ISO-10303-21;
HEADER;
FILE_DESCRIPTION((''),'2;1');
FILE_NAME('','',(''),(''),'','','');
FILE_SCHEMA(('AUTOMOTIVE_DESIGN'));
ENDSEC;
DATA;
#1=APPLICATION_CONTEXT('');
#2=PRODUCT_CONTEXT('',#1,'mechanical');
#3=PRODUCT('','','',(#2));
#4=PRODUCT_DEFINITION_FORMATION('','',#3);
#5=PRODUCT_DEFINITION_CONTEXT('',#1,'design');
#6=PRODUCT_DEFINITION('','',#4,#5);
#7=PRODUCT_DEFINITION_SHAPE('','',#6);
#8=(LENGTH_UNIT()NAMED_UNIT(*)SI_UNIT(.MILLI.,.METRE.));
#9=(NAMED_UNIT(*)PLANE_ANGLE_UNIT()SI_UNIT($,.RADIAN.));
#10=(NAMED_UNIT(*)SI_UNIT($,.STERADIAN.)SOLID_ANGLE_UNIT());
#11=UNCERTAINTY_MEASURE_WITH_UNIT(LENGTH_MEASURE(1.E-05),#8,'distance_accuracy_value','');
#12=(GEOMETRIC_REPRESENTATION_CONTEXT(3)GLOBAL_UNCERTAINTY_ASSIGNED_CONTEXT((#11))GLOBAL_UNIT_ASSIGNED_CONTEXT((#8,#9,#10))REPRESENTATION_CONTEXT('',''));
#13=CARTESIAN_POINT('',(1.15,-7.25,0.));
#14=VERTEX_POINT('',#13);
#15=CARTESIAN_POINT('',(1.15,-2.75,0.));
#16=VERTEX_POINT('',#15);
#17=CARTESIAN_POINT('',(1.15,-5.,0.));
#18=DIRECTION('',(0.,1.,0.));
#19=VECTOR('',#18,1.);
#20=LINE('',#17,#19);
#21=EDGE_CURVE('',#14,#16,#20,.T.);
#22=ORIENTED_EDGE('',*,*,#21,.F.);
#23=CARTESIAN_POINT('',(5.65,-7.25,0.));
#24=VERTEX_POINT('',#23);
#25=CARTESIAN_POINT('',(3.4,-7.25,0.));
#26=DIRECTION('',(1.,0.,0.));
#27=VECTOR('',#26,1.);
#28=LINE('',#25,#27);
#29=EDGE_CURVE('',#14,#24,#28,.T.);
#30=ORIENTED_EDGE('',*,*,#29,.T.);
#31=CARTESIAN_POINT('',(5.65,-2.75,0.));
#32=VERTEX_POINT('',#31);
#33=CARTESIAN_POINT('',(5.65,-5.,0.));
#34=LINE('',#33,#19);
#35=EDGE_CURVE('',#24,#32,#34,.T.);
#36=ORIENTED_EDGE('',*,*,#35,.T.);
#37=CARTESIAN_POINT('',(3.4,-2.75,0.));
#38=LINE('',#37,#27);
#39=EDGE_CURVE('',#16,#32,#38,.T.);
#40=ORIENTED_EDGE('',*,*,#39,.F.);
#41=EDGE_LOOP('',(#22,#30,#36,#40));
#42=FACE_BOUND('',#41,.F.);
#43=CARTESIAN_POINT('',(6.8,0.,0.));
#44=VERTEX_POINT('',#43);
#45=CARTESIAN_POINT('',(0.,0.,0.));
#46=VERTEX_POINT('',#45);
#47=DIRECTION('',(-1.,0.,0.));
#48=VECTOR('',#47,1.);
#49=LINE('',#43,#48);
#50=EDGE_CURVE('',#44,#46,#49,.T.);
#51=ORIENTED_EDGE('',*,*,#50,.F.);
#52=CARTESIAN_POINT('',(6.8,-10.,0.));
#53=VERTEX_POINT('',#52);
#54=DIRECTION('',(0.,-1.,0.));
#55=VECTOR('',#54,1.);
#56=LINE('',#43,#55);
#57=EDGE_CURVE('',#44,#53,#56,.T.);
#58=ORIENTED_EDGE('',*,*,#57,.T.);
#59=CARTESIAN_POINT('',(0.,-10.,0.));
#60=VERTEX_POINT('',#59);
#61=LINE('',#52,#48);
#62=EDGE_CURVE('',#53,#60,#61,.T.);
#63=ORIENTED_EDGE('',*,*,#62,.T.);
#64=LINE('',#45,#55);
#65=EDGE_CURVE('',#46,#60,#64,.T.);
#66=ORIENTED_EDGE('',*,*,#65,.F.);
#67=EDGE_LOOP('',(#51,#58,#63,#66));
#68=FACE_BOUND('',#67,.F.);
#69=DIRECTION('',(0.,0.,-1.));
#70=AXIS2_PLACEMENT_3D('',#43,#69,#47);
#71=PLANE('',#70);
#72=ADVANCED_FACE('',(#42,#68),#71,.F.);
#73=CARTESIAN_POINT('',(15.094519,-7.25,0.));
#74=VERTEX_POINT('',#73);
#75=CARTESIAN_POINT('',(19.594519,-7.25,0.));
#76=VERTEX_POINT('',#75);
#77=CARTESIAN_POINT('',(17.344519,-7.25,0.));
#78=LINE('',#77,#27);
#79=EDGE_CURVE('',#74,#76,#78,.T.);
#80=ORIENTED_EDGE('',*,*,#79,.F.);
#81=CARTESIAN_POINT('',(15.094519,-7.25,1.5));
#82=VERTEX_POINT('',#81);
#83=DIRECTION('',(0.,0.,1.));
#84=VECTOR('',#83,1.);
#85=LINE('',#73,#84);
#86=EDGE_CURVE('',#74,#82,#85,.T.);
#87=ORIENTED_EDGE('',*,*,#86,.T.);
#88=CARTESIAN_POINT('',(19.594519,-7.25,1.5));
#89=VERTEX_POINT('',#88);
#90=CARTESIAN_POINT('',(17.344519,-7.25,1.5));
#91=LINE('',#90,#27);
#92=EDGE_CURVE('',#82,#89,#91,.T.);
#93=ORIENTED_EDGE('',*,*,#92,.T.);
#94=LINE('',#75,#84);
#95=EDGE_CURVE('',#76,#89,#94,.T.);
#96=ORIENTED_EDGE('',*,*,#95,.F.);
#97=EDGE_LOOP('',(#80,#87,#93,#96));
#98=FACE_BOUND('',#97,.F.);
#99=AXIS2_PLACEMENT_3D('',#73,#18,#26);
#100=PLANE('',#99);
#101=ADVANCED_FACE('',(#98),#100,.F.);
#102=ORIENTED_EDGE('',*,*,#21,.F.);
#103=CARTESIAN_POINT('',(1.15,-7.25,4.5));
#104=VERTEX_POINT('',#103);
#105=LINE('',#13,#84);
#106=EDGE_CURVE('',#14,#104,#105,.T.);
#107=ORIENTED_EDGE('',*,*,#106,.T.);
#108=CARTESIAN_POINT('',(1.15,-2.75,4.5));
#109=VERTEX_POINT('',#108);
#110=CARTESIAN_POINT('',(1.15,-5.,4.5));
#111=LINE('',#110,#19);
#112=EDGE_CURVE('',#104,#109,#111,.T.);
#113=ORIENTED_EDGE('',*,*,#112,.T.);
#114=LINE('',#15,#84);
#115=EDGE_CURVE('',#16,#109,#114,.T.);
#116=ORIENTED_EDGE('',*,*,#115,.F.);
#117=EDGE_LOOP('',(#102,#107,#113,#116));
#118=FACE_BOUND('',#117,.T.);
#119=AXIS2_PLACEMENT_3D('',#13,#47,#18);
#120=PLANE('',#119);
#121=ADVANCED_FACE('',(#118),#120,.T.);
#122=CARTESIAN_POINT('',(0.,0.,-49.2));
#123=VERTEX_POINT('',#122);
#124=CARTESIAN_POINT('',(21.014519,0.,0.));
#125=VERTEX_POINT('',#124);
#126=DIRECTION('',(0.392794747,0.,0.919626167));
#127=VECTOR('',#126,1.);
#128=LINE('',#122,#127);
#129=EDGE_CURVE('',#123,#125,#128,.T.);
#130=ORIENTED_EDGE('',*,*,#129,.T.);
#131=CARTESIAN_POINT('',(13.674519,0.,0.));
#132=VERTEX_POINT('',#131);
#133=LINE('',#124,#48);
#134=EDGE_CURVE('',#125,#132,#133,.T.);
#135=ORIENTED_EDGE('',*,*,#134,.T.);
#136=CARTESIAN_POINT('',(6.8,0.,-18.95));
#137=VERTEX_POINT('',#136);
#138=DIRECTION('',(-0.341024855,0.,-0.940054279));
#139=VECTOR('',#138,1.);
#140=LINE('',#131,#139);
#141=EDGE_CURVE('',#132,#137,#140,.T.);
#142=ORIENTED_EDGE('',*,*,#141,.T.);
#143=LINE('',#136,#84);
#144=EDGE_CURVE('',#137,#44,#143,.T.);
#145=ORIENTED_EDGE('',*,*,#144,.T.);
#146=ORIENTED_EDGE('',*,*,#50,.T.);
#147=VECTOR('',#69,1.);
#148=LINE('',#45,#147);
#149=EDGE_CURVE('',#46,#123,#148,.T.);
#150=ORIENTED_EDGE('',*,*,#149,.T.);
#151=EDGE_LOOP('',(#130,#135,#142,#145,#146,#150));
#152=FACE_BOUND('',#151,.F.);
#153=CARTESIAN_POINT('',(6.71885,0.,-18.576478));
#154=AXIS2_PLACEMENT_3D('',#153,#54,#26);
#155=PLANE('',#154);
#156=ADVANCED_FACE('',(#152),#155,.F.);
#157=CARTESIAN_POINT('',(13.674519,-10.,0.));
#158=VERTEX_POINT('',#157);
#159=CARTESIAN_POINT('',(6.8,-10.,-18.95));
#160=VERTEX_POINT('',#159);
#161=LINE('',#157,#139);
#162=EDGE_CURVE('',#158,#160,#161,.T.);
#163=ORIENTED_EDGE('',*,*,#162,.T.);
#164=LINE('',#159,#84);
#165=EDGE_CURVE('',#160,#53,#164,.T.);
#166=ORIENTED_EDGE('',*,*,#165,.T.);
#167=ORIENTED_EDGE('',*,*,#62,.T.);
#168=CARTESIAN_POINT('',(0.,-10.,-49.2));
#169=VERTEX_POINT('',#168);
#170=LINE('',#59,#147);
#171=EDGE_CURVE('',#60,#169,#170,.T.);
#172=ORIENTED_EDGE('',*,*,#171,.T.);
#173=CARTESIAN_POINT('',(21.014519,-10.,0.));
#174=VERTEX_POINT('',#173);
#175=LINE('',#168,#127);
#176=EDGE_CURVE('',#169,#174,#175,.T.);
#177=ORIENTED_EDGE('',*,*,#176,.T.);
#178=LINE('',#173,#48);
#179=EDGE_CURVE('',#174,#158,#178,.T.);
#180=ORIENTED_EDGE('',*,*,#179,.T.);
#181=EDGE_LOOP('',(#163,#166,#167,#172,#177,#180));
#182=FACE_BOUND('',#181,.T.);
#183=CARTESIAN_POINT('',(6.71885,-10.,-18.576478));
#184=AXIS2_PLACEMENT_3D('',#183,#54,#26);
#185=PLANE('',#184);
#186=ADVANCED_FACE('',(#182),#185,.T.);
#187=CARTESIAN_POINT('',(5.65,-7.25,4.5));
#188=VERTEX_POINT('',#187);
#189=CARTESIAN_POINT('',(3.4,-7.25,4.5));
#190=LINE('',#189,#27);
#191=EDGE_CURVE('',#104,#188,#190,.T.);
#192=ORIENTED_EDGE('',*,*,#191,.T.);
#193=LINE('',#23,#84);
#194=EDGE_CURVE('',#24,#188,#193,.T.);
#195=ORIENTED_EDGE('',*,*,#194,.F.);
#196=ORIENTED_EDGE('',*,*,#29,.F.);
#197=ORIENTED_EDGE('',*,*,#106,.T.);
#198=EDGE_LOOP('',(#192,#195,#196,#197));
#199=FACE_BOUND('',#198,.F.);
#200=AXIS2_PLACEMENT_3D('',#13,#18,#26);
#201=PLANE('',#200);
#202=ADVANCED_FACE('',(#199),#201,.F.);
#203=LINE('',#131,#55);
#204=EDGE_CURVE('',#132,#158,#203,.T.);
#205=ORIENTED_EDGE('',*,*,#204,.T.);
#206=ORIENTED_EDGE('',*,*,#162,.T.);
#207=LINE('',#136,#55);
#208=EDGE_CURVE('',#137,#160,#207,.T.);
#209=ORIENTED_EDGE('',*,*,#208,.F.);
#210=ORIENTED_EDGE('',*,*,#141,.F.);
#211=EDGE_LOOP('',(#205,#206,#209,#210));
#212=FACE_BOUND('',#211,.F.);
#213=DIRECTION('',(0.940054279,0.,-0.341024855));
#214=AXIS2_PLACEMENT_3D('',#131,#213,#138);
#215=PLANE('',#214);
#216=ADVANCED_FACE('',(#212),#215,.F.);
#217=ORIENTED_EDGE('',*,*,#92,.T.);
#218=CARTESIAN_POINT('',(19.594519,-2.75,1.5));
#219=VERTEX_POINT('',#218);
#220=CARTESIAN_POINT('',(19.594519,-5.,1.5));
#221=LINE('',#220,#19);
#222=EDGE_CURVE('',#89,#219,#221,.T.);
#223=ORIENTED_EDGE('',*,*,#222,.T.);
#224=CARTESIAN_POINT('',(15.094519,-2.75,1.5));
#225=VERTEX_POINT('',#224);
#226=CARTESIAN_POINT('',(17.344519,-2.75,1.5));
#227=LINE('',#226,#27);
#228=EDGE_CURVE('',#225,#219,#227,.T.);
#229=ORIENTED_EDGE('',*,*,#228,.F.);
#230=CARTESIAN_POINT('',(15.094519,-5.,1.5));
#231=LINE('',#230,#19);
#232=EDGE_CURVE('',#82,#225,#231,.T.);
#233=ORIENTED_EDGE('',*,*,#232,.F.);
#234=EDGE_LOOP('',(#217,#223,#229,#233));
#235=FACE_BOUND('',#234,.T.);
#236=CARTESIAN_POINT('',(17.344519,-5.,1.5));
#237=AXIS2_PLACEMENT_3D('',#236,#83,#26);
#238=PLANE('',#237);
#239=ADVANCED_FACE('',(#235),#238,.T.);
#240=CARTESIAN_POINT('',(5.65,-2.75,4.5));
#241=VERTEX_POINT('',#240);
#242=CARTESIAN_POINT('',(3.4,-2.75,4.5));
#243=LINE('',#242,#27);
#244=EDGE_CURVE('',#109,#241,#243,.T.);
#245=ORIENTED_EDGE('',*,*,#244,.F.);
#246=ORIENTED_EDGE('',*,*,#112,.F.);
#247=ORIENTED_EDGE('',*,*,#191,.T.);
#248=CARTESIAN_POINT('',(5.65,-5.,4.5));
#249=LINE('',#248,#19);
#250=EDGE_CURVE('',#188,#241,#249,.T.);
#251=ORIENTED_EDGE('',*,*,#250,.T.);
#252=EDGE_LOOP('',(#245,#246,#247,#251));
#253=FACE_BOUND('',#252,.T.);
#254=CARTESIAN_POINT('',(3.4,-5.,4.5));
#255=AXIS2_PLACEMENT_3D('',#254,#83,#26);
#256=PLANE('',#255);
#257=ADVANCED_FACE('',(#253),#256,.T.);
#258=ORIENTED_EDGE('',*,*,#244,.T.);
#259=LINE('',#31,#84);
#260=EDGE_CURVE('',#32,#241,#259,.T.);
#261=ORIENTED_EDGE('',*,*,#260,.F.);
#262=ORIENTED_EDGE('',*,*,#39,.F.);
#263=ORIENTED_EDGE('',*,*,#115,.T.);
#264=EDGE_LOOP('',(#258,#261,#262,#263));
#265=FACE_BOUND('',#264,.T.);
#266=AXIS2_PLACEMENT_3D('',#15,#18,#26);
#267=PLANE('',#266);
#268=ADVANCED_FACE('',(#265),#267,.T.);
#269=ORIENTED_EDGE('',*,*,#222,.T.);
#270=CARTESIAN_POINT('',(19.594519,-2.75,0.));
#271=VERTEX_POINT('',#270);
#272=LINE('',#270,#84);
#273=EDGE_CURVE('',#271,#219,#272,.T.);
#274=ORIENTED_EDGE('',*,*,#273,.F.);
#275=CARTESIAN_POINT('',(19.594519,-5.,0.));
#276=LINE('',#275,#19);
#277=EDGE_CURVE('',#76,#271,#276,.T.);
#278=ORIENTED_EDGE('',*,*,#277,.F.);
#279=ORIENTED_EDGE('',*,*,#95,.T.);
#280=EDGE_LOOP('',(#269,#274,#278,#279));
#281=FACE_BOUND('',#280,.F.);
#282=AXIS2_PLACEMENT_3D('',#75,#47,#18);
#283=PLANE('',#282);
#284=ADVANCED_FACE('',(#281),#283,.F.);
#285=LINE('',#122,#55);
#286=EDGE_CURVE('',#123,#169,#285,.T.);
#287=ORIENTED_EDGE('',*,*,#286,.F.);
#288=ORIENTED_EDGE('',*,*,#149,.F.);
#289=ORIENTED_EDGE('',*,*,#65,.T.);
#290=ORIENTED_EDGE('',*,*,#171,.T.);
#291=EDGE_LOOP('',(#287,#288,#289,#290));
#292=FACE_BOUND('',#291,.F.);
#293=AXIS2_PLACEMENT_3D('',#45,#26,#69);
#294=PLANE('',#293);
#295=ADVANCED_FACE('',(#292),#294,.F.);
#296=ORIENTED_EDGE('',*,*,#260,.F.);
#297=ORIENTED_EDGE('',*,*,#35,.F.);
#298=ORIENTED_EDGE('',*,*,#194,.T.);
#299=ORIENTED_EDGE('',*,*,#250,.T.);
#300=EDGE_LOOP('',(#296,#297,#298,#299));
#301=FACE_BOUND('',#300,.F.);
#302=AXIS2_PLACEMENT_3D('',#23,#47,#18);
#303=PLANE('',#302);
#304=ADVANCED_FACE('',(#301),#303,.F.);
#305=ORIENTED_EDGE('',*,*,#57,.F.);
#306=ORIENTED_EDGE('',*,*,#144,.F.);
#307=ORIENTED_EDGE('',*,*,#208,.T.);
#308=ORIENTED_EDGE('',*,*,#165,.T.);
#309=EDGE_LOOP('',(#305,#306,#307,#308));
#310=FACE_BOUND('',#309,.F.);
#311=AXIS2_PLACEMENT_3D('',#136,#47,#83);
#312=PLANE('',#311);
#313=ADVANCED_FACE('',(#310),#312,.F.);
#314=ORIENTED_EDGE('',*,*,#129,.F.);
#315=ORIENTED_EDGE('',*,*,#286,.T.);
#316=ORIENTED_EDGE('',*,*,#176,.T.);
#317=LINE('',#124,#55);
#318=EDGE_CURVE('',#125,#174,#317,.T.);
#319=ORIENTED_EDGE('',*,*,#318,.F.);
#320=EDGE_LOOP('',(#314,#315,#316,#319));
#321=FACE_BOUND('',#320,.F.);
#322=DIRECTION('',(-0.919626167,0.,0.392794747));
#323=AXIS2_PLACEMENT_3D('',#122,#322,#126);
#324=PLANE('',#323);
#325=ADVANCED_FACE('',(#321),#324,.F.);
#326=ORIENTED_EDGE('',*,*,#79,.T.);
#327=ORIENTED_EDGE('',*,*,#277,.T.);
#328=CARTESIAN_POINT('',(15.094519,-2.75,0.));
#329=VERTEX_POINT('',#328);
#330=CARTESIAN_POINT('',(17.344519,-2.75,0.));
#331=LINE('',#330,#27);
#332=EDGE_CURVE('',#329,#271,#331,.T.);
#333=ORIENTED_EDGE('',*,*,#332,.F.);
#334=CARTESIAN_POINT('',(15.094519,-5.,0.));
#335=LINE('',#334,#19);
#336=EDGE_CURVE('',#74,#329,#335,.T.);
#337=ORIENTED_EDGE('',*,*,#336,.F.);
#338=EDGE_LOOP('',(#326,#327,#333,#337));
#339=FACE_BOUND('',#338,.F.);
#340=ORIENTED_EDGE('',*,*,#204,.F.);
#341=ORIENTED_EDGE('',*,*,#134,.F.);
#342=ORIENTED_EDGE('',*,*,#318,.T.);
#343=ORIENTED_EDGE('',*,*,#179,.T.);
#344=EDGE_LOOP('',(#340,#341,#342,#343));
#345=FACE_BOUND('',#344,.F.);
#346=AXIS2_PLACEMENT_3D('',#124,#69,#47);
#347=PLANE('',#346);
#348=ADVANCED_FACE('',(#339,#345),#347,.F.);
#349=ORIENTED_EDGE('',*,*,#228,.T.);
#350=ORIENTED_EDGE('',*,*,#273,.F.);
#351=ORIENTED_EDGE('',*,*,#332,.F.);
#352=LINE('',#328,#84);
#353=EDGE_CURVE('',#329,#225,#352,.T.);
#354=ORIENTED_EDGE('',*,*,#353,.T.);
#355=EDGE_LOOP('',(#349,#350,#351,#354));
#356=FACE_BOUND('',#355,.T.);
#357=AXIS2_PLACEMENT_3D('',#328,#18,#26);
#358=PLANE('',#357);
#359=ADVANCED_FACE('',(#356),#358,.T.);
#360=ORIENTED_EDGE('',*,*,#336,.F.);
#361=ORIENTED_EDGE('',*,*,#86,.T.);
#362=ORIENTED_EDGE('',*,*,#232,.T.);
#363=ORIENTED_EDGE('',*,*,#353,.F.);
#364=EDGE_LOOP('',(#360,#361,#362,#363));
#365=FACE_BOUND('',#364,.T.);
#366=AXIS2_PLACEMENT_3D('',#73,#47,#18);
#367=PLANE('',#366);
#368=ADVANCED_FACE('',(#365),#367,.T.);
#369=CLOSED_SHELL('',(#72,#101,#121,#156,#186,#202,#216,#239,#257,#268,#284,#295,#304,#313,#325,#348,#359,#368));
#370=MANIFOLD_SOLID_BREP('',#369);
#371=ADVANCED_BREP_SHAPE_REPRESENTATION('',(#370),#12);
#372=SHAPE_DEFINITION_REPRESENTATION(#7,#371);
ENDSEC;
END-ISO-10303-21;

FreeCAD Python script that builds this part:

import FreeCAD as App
import Part
import Sketcher
Q = App.Units.Quantity


def add_polygon(sketch, points):
    """Adds a closed chain of lines whose ends are joined by coincident constraints."""
    first, n = sketch.GeometryCount, len(points)
    for a, b in zip(points, points[1:] + points[:1]):
        sketch.addGeometry(Part.LineSegment(App.Vector(*a, 0), App.Vector(*b, 0)), False)
    for i in range(n):
        sketch.addConstraint(Sketcher.Constraint("Coincident", first + i, 2, first + (i + 1) % n, 1))

doc = App.newDocument("Part")
body = doc.addObject("PartDesign::Body", "Body")

sketch1 = body.newObject("Sketcher::SketchObject", "Sketch")
sketch1.AttachmentSupport = (doc.getObject("XZ_Plane"), [""])
sketch1.MapMode = "FlatFace"
add_polygon(sketch1, [(6.8, 0), (0, 0), (0, -49.2), (21.014519, 0), (13.674519, 0), (6.8, -18.95)])
sketch1.addConstraint([
    Sketcher.Constraint("Horizontal", 0),
    Sketcher.Constraint("Vertical", 1),
    Sketcher.Constraint("Horizontal", 3),
    Sketcher.Constraint("Vertical", 5),
    Sketcher.Constraint("Coincident", 0, 2, -1, 1),
    Sketcher.Constraint("PointOnObject", 2, 2, -1),
    Sketcher.Constraint("DistanceX", 0, 2, 0, 1, Q("6.8 mm")),
    Sketcher.Constraint("DistanceY", 1, 2, 1, 1, Q("49.2 mm")),
    Sketcher.Constraint("Distance", 2, Q("53.5 mm")),
    Sketcher.Constraint("DistanceX", 3, 2, 3, 1, Q("7.34 mm")),
    Sketcher.Constraint("DistanceY", 5, 1, 5, 2, Q("18.95 mm")),
])
pad1 = body.newObject("PartDesign::Pad", "Pad")
pad1.Profile = sketch1
pad1.Length = 10

sketch2 = body.newObject("Sketcher::SketchObject", "Sketch001")
sketch2.AttachmentSupport = (doc.getObject("XY_Plane"), [""])
sketch2.MapMode = "FlatFace"
add_polygon(sketch2, [(1.15, -2.75), (1.15, -7.25), (5.65, -7.25), (5.65, -2.75)])
sketch2.addConstraint([
    Sketcher.Constraint("Vertical", 0),
    Sketcher.Constraint("Horizontal", 1),
    Sketcher.Constraint("Vertical", 2),
    Sketcher.Constraint("Horizontal", 3),
    Sketcher.Constraint("Equal", 3, 0),
    Sketcher.Constraint("DistanceX", 1, 1, 1, 2, Q("4.5 mm")),
    Sketcher.Constraint("DistanceX", -1, 1, 0, 2, Q("1.15 mm")),
    Sketcher.Constraint("DistanceY", 0, 2, -1, 1, Q("7.25 mm")),
])
pad2 = body.newObject("PartDesign::Pad", "Pad001")
pad2.Profile = sketch2
pad2.Length = 4.5

sketch3 = body.newObject("Sketcher::SketchObject", "Sketch002")
sketch3.AttachmentSupport = (doc.getObject("XY_Plane"), [""])
sketch3.MapMode = "FlatFace"
add_polygon(sketch3, [(15.094519, -2.75), (15.094519, -7.25), (19.594519, -7.25), (19.594519, -2.75)])
sketch3.addConstraint([
    Sketcher.Constraint("Vertical", 0),
    Sketcher.Constraint("Horizontal", 1),
    Sketcher.Constraint("Vertical", 2),
    Sketcher.Constraint("Horizontal", 3),
    Sketcher.Constraint("Equal", 3, 0),
    Sketcher.Constraint("DistanceX", 1, 1, 1, 2, Q("4.5 mm")),
    Sketcher.Constraint("DistanceY", 0, 2, -1, 1, Q("7.25 mm")),
    Sketcher.Constraint("DistanceX", -1, 1, 0, 2, Q("15.094519 mm")),
])
pad3 = body.newObject("PartDesign::Pad", "Pad002")
pad3.Profile = sketch3
pad3.Length = 1.5

doc.recompute()
